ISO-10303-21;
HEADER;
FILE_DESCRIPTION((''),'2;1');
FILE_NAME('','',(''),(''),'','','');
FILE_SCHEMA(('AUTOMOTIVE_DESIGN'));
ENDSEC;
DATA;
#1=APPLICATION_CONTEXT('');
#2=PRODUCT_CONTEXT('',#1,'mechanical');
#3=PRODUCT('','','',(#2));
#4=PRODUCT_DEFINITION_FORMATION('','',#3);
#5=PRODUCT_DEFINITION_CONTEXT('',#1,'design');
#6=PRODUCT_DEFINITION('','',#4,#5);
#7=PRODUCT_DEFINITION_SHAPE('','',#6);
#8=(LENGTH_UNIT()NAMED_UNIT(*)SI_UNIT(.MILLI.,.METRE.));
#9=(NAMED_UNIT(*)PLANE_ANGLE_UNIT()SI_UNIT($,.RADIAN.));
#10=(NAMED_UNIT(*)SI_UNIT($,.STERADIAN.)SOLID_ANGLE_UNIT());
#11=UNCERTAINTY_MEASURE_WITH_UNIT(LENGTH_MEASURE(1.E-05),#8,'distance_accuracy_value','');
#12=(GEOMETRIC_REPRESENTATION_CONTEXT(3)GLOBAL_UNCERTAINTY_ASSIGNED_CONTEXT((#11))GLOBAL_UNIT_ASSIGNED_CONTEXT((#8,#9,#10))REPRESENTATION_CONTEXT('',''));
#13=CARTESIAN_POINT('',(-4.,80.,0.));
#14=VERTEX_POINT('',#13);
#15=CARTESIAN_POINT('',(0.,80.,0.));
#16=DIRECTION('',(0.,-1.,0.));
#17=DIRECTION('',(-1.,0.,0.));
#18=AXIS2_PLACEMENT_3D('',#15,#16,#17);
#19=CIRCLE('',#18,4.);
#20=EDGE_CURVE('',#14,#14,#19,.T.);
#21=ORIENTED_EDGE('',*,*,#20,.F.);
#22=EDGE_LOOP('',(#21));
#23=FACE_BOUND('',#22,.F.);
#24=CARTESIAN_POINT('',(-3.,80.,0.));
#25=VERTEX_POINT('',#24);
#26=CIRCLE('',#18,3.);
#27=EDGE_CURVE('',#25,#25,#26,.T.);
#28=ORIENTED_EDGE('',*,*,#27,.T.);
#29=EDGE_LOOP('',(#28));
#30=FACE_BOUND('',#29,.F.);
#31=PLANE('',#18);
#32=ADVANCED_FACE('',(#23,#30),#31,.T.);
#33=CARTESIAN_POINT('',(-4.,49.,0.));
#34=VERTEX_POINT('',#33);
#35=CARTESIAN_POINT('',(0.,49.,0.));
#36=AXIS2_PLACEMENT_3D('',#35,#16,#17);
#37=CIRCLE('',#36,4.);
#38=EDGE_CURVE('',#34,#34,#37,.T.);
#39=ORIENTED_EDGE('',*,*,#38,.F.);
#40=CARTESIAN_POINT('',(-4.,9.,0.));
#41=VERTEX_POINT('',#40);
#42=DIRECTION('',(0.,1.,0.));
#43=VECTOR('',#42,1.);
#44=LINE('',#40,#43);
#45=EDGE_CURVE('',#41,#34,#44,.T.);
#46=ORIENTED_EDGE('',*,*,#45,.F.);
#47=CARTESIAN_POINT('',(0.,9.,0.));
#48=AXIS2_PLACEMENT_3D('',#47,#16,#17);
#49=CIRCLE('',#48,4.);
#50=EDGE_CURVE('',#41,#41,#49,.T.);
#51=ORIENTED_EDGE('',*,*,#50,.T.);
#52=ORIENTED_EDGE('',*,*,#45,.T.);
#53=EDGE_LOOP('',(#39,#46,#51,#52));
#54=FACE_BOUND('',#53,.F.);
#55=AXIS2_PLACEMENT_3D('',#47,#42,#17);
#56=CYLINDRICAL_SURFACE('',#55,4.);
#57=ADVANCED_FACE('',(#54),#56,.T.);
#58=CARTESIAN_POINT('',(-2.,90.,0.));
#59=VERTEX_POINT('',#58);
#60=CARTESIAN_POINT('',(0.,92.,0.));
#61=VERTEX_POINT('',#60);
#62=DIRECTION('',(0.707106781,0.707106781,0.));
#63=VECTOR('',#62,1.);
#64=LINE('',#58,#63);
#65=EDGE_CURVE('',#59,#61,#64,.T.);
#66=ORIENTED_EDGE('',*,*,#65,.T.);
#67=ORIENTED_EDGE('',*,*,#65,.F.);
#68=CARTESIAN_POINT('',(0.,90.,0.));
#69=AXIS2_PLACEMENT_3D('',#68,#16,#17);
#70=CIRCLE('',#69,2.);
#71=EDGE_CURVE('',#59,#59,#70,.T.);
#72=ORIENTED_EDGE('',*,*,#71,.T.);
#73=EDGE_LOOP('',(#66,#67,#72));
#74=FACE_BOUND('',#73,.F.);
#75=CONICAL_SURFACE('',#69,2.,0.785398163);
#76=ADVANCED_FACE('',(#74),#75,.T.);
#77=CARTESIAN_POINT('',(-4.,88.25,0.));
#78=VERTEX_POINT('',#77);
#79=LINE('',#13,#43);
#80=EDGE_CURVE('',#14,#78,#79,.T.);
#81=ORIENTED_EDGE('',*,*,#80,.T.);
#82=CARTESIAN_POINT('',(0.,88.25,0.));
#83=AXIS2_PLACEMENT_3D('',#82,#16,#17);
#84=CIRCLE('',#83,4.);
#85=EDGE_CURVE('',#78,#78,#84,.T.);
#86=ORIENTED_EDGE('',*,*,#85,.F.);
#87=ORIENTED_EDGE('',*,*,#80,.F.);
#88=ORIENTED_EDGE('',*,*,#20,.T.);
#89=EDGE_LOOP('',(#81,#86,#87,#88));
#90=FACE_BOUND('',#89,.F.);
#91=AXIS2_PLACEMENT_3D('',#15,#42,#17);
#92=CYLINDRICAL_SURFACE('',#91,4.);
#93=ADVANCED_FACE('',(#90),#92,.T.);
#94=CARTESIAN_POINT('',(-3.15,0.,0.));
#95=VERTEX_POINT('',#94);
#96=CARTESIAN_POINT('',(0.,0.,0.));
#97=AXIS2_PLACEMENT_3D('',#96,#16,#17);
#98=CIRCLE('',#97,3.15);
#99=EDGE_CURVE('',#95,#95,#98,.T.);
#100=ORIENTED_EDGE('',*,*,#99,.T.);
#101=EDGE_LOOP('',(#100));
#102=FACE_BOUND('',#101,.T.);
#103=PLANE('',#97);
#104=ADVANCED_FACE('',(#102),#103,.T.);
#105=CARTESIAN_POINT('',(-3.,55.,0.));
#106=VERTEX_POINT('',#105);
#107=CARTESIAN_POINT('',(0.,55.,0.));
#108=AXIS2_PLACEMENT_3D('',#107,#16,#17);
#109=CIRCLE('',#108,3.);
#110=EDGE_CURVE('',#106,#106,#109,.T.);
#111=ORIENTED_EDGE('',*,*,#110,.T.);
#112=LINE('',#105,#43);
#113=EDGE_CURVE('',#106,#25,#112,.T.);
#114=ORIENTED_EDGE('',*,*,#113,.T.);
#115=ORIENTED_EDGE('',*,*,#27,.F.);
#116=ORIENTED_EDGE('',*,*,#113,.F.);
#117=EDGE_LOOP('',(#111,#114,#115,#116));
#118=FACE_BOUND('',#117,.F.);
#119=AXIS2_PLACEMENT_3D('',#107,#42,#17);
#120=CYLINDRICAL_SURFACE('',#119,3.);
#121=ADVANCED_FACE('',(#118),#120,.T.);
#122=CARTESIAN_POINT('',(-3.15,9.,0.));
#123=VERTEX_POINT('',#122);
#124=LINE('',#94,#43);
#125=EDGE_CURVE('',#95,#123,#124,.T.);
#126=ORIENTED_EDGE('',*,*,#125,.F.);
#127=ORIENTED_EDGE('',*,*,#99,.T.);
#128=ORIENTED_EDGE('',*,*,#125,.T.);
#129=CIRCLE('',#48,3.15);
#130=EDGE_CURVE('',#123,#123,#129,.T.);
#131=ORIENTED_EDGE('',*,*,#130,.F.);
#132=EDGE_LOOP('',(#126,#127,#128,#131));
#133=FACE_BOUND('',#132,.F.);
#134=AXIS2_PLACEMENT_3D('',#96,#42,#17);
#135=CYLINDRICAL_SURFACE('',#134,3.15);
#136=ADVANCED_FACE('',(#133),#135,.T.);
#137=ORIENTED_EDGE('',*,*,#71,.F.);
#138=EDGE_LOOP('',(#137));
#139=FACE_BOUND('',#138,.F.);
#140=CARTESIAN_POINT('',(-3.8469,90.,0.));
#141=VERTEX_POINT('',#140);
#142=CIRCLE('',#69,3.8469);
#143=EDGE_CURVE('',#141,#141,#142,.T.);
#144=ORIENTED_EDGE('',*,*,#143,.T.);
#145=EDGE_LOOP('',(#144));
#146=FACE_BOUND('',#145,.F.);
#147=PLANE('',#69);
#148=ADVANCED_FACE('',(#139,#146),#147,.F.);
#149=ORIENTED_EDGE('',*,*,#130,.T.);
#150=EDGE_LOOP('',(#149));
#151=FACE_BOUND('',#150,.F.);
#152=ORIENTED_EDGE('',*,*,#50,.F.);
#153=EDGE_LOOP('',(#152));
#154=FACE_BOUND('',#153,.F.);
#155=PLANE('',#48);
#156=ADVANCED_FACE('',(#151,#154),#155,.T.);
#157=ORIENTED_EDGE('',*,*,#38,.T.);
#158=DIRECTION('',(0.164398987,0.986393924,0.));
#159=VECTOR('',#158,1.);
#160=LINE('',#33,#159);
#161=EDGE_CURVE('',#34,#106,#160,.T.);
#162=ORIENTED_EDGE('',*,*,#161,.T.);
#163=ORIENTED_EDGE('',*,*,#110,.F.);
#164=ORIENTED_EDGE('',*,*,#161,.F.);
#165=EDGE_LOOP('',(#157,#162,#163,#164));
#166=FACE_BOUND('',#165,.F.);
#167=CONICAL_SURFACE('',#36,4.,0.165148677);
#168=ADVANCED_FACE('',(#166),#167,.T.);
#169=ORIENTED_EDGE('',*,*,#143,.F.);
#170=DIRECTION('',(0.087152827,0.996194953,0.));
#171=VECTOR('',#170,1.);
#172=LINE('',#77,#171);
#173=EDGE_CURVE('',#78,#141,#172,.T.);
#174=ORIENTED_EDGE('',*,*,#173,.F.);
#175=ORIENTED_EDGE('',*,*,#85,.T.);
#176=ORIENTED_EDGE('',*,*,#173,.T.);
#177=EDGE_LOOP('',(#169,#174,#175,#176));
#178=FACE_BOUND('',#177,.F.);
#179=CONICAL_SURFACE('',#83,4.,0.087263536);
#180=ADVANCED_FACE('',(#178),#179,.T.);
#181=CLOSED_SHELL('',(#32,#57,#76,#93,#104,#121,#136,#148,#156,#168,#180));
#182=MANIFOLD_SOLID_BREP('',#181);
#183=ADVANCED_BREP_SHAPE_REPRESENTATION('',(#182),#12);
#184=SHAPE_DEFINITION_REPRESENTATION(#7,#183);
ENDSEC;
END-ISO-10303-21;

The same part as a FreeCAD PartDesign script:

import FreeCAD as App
import Part
import Sketcher
from FreeCAD import Vector
Q = App.Units.Quantity


def add_polygon(sketch, points):
    """Adds a closed chain of lines whose ends are joined by coincident constraints."""
    first, n = sketch.GeometryCount, len(points)
    for a, b in zip(points, points[1:] + points[:1]):
        sketch.addGeometry(Part.LineSegment(App.Vector(*a, 0), App.Vector(*b, 0)), False)
    for i in range(n):
        sketch.addConstraint(Sketcher.Constraint("Coincident", first + i, 2, first + (i + 1) % n, 1))

doc = App.newDocument("Part")
body = doc.addObject("PartDesign::Body", "Body")

# Sketch on XY plane
sketch1 = body.newObject("Sketcher::SketchObject", "Sketch")
sketch1.AttachmentSupport = (doc.getObject("XY_Plane"), [""])
sketch1.MapMode = "FlatFace"
add_polygon(sketch1, [(-3.15, 9), (-3.15, 0), (0, 0), (0, 92), (-2, 90), (-3.8469, 90), (-4, 88.25), (-4, 80), (-3, 80), (-3, 55), (-4, 49), (-4, 9)])  # lines 0-11
sketch1.addConstraint(Sketcher.Constraint("Vertical", 0))
sketch1.addConstraint(Sketcher.Constraint("Horizontal", 1))
sketch1.addConstraint(Sketcher.Constraint("Vertical", 2))
sketch1.addConstraint(Sketcher.Constraint("Horizontal", 4))
sketch1.addConstraint(Sketcher.Constraint("Vertical", 6))
sketch1.addConstraint(Sketcher.Constraint("Horizontal", 7))
sketch1.addConstraint(Sketcher.Constraint("Vertical", 8))
sketch1.addConstraint(Sketcher.Constraint("Vertical", 10))
sketch1.addConstraint(Sketcher.Constraint("Horizontal", 11))
sketch1.addConstraint(Sketcher.Constraint("Coincident", 1, 2, -1, 1))
sketch1.addConstraint(Sketcher.Constraint("Vertical", 6, 2, 9, 2))
sketch1.addConstraint(Sketcher.Constraint("DistanceY", 0, 2, 0, 1, Q("9 mm")))
sketch1.addConstraint(Sketcher.Constraint("DistanceY", 2, 1, 2, 2, Q("92 mm")))
sketch1.addConstraint(Sketcher.Constraint("DistanceX", 3, 2, -1, 1, Q("2 mm")))
sketch1.addConstraint(Sketcher.Constraint("DistanceY", 3, 2, 2, 2, Q("2 mm")))
sketch1.addConstraint(Sketcher.Constraint("DistanceX", 5, 2, 3, 2, Q("2 mm")))
sketch1.addConstraint(Sketcher.Constraint("DistanceY", 6, 2, 2, 2, Q("12 mm")))
sketch1.addConstraint(Sketcher.Constraint("DistanceY", 9, 2, 8, 2, Q("6 mm")))
sketch1.addConstraint(Sketcher.Constraint("DistanceX", 7, 1, 7, 2, Q("1 mm")))
sketch1.addConstraint(Sketcher.Constraint("DistanceY", 8, 2, 8, 1, Q("25 mm")))
sketch1.addConstraint(Sketcher.Constraint("Angle", 5, Q("-94.9998 deg")))
sketch1.addConstraint(Sketcher.Constraint("DistanceY", 5, 2, 2, 2, Q("3.75 mm")))
sketch1.addConstraint(Sketcher.Constraint("DistanceX", 1, 1, 1, 2, Q("3.15 mm")))
revolution = body.newObject("PartDesign::Revolution", "Revolution")
revolution.Profile = sketch1
revolution.ReferenceAxis = (sketch1, ["V_Axis"])
revolution.Angle = 360

doc.recompute()
